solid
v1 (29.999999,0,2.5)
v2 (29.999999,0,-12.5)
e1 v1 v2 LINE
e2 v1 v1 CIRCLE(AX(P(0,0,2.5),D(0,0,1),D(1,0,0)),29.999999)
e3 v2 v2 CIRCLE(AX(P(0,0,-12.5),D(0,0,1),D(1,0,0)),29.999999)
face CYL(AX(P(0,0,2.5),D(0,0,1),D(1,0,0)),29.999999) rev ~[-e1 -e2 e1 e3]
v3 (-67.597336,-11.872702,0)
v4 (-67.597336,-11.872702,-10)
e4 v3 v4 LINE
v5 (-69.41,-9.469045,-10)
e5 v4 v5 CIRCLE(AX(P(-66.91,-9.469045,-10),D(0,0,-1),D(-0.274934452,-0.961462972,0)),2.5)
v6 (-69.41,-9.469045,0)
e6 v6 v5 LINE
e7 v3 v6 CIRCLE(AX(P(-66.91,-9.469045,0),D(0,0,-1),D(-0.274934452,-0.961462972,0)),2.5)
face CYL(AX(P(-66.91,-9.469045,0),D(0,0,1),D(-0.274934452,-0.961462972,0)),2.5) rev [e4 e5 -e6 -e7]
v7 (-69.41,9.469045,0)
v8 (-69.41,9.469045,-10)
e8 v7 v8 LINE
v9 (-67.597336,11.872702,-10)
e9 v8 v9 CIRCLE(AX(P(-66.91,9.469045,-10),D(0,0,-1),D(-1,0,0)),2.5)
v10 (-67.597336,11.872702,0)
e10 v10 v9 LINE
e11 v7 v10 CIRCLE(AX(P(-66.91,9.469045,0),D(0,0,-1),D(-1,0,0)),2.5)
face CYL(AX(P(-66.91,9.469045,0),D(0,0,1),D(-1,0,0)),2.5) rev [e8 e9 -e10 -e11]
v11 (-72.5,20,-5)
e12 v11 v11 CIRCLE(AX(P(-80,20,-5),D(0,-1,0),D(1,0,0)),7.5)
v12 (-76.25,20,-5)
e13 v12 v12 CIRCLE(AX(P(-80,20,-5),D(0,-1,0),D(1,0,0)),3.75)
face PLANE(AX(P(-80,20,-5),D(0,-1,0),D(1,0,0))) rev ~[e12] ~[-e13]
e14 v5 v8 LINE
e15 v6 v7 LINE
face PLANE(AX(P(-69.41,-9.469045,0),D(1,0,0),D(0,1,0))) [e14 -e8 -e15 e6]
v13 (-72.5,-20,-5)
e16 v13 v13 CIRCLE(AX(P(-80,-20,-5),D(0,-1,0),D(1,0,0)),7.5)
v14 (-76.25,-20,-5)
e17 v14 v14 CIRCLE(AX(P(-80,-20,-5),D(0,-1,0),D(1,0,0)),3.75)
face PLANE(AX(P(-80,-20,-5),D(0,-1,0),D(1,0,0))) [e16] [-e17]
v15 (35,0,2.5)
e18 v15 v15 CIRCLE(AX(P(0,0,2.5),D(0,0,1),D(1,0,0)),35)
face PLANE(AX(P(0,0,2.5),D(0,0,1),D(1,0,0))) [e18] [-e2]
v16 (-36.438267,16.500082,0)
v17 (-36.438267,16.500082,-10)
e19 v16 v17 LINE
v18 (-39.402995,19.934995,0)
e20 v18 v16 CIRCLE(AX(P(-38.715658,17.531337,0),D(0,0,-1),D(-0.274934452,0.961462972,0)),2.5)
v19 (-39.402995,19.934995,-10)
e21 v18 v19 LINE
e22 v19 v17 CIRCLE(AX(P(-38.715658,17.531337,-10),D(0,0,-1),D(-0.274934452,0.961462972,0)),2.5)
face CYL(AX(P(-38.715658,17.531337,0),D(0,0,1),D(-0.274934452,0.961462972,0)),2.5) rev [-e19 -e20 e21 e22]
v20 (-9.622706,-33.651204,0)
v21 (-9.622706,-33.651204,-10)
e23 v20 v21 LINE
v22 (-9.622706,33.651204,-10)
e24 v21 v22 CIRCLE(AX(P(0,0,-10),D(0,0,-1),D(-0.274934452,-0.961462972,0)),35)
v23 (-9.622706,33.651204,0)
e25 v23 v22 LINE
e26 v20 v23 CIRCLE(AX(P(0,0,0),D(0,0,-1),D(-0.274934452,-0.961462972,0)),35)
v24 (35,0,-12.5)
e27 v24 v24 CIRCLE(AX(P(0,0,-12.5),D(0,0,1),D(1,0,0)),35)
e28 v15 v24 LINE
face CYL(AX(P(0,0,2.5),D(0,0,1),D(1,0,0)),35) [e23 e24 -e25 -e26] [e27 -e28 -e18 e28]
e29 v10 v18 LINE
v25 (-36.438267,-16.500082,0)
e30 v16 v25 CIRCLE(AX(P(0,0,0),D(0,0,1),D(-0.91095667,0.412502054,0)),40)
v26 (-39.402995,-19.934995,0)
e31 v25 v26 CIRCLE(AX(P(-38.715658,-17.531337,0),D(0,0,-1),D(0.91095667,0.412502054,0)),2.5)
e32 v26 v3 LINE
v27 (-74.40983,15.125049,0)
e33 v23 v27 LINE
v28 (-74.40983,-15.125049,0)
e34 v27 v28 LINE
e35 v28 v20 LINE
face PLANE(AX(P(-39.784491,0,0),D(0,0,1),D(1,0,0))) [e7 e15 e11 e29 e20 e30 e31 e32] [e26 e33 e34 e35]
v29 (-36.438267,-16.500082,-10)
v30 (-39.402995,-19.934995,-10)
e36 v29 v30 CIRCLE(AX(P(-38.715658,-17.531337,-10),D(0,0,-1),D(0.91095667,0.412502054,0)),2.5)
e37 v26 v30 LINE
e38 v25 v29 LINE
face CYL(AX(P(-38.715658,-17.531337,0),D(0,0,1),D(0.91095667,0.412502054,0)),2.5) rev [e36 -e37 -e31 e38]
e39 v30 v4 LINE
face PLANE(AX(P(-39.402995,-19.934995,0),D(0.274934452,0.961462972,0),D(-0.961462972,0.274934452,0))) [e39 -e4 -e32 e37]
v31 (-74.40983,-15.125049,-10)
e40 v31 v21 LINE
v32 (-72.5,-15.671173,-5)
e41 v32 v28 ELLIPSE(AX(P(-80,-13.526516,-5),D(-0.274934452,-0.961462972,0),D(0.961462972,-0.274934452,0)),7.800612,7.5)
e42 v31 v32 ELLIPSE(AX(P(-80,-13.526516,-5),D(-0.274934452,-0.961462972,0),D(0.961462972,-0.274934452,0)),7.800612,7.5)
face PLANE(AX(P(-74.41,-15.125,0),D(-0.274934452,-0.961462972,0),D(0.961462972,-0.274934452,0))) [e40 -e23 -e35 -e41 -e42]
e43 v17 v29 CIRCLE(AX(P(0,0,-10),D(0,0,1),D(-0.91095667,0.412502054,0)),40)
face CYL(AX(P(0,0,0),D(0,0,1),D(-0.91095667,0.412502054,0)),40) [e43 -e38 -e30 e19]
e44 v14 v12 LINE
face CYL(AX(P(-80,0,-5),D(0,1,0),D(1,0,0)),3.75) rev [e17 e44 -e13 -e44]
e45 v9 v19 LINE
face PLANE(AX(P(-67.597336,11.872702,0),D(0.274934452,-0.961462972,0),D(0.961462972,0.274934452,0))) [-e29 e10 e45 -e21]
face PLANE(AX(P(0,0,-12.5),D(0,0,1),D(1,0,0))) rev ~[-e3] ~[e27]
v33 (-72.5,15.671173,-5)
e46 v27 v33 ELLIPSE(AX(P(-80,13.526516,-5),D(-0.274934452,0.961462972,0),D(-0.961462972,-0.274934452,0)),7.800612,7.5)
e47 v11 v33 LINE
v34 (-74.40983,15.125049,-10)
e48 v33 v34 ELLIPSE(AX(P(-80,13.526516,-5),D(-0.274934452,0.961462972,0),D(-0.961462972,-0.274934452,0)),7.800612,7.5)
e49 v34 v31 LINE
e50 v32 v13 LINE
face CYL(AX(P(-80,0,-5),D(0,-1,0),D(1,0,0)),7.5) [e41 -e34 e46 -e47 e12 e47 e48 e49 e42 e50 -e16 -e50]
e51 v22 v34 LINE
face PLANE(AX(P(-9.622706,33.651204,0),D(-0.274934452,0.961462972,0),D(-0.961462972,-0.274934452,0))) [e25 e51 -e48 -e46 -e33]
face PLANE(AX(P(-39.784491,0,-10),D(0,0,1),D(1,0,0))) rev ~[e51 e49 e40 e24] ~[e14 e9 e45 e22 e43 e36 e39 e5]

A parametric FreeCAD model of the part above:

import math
import FreeCAD as App
import Part
import Sketcher

V = App.Vector
Q = App.Units.Quantity

doc = App.newDocument("Part")
params = doc.addObject("Spreadsheet::Sheet", "Params")
for row, (alias, value) in enumerate([
    ("sketch1_diameter", "70 mm"),
    ("sketch1_diameter2", "59.999999 mm"),
    ("pad1_length", "15 mm"),
    ("sketch2_diameter", "15 mm"),
    ("sketch2_diameter2", "7.5 mm"),
    ("pad2_length", "40 mm"),
    ("sketch3_radius", "35 mm"),
    ("sketch3_radius2", "40 mm"),
    ("sketch3_radius3", "2.5 mm"),
    ("sketch3_height", "30.25 mm"),
    ("pad3_length", "10 mm"),
], start=1):
    params.set(f"A{row}", alias)
    params.set(f"B{row}", "=" + value)
    params.setAlias(f"B{row}", alias)

body = doc.addObject("PartDesign::Body", "Body")

# Sketch on XY plane
sketch1 = doc.addObject("Sketcher::SketchObject", "Sketch")
body.addObject(sketch1)
sketch1.AttachmentSupport = (doc.XY_Plane, [""])
sketch1.MapMode = "FlatFace"
sketch1.AttachmentOffset = App.Placement(V(0, 0, 2.5), App.Rotation())
sketch1.addGeometry(Part.Circle(V(0, 0, 0), V(0, 0, 1), 35), False)
sketch1.addGeometry(Part.Circle(V(0, 0, 0), V(0, 0, 1), 30), False)
sketch1.addConstraint(Sketcher.Constraint("Coincident", 0, 3, -1, 1))
sketch1.addConstraint(Sketcher.Constraint("Coincident", 1, 3, -1, 1))
sketch1.addConstraint(Sketcher.Constraint("Diameter", 0, Q("70 mm")))
sketch1.addConstraint(Sketcher.Constraint("Diameter", 1, Q("59.999999 mm")))
sketch1.setExpression("Constraints[2]", "Params.sketch1_diameter")
sketch1.setExpression("Constraints[3]", "Params.sketch1_diameter2")
pad1 = doc.addObject("PartDesign::Pad", "Pad")
body.addObject(pad1)
pad1.Profile = sketch1
pad1.setExpression("Length", "Params.pad1_length")
pad1.Reversed = True
body2 = doc.addObject("PartDesign::Body", "Body001")

# Sketch on XZ plane
sketch2 = doc.addObject("Sketcher::SketchObject", "Sketch001")
body2.addObject(sketch2)
sketch2.AttachmentSupport = (doc.getObject("XZ_Plane001"), [""])
sketch2.MapMode = "FlatFace"
sketch2.addGeometry(Part.Circle(V(-80, -5, 0), V(0, 0, 1), 7.5), False)
sketch2.addGeometry(Part.Circle(V(-80, -5, 0), V(0, 0, 1), 3.8), False)
sketch2.addConstraint(Sketcher.Constraint("Coincident", 1, 3, 0, 3))
sketch2.addConstraint(Sketcher.Constraint("Diameter", 0, Q("15 mm")))
sketch2.addConstraint(Sketcher.Constraint("Diameter", 1, Q("7.5 mm")))
sketch2.addConstraint(Sketcher.Constraint("DistanceX", 0, 3, -1, 1, Q("80 mm")))
sketch2.addConstraint(Sketcher.Constraint("DistanceY", 0, 3, -1, 1, Q("5 mm")))
sketch2.setExpression("Constraints[1]", "Params.sketch2_diameter")
sketch2.setExpression("Constraints[2]", "Params.sketch2_diameter2")
pad2 = doc.addObject("PartDesign::Pad", "Pad001")
body2.addObject(pad2)
pad2.Profile = sketch2
pad2.setExpression("Length", "Params.pad2_length")
pad2.Midplane = True
body.AllowCompound = True
doc.recompute()

boolean = doc.addObject("PartDesign::Boolean", "Boolean")
body.addObject(boolean)
boolean.Type = "Fuse"
boolean.addObjects([body2])

# Sketch on XY plane
sketch3 = doc.addObject("Sketcher::SketchObject", "Sketch002")
body.addObject(sketch3)
sketch3.AttachmentSupport = (doc.XY_Plane, [""])
sketch3.MapMode = "FlatFace"
sketch3.addGeometry(Part.ArcOfCircle(Part.Circle(V(0, 0, 0), V(0, 0, 1), 35), math.radians(106), math.radians(254)), False)
sketch3.addGeometry(Part.LineSegment(V(-9.6, 33.7, 0), V(-74.4, 15.1, 0)), False)
sketch3.addGeometry(Part.LineSegment(V(-74.4, 15.1, 0), V(-74.4, -15.1, 0)), False)
sketch3.addGeometry(Part.LineSegment(V(-74.4, -15.1, 0), V(-9.6, -33.7, 0)), False)
sketch3.addGeometry(Part.LineSegment(V(-67.6, 11.9, 0), V(-39.4, 19.9, 0)), False)
sketch3.addGeometry(Part.ArcOfCircle(Part.Circle(V(-38.7, 17.5, 0), V(0, 0, 1), 2.5), math.radians(-24), math.radians(106)), False)
sketch3.addGeometry(Part.ArcOfCircle(Part.Circle(V(0, 0, 0), V(0, 0, 1), 40), math.radians(156), math.radians(204)), False)
sketch3.addGeometry(Part.ArcOfCircle(Part.Circle(V(-38.7, -17.5, 0), V(0, 0, 1), 2.5), math.radians(-106), math.radians(24)), False)
sketch3.addGeometry(Part.LineSegment(V(-39.4, -19.9, 0), V(-67.6, -11.9, 0)), False)
sketch3.addGeometry(Part.ArcOfCircle(Part.Circle(V(-66.9, -9.5, 0), V(0, 0, 1), 2.5), math.radians(180), math.radians(254)), False)
sketch3.addGeometry(Part.LineSegment(V(-69.4, -9.5, 0), V(-69.4, 9.5, 0)), False)
sketch3.addGeometry(Part.ArcOfCircle(Part.Circle(V(-66.9, 9.5, 0), V(0, 0, 1), 2.5), math.radians(106), math.radians(180)), False)
sketch3.addConstraint(Sketcher.Constraint("Tangent", 0, 1, 1, 1))
sketch3.addConstraint(Sketcher.Constraint("Coincident", 1, 2, 2, 1))
sketch3.addConstraint(Sketcher.Constraint("Coincident", 2, 2, 3, 1))
sketch3.addConstraint(Sketcher.Constraint("Tangent", 3, 2, 0, 2))
sketch3.addConstraint(Sketcher.Constraint("Tangent", 4, 2, 5, 2))
sketch3.addConstraint(Sketcher.Constraint("Tangent", 5, 1, 6, 1))
sketch3.addConstraint(Sketcher.Constraint("Tangent", 6, 2, 7, 2))
sketch3.addConstraint(Sketcher.Constraint("Tangent", 7, 1, 8, 1))
sketch3.addConstraint(Sketcher.Constraint("Tangent", 8, 2, 9, 2))
sketch3.addConstraint(Sketcher.Constraint("Tangent", 9, 1, 10, 1))
sketch3.addConstraint(Sketcher.Constraint("Tangent", 10, 2, 11, 2))
sketch3.addConstraint(Sketcher.Constraint("Tangent", 11, 1, 4, 1))
sketch3.addConstraint(Sketcher.Constraint("Vertical", 2))
sketch3.addConstraint(Sketcher.Constraint("Vertical", 10))
sketch3.addConstraint(Sketcher.Constraint("Coincident", 0, 3, -1, 1))
sketch3.addConstraint(Sketcher.Constraint("Coincident", 6, 3, -1, 1))
sketch3.addConstraint(Sketcher.Constraint("Equal", 5, 7))
sketch3.addConstraint(Sketcher.Constraint("Equal", 7, 9))
sketch3.addConstraint(Sketcher.Constraint("Equal", 9, 11))
sketch3.addConstraint(Sketcher.Constraint("Symmetric", 4, 2, 7, 1, -1))
sketch3.addConstraint(Sketcher.Constraint("Parallel", 1, 4))
sketch3.addConstraint(Sketcher.Constraint("Parallel", 3, 8))
sketch3.addConstraint(Sketcher.Constraint("Radius", 0, Q("35 mm")))
sketch3.addConstraint(Sketcher.Constraint("Radius", 6, Q("40 mm")))
sketch3.addConstraint(Sketcher.Constraint("Radius", 5, Q("2.5 mm")))
sketch3.addConstraint(Sketcher.Constraint("DistanceX", 2, 2, 9, 1, Q("5 mm")))
sketch3.addConstraint(Sketcher.Constraint("DistanceY", 2, 2, 2, 1, Q("30.25 mm")))
sketch3.addConstraint(Sketcher.Constraint("DistanceX", 9, 3, -1, 1, Q("66.91 mm")))
sketch3.addConstraint(Sketcher.Constraint("DistanceY", 10, 1, 10, 2, Q("18.938089 mm")))
sketch3.setExpression("Constraints[22]", "Params.sketch3_radius")
sketch3.setExpression("Constraints[23]", "Params.sketch3_radius2")
sketch3.setExpression("Constraints[24]", "Params.sketch3_radius3")
sketch3.setExpression("Constraints[26]", "Params.sketch3_height")
pad3 = doc.addObject("PartDesign::Pad", "Pad002")
body.addObject(pad3)
pad3.Profile = sketch3
pad3.setExpression("Length", "Params.pad3_length")
pad3.Reversed = True

doc.recompute()
